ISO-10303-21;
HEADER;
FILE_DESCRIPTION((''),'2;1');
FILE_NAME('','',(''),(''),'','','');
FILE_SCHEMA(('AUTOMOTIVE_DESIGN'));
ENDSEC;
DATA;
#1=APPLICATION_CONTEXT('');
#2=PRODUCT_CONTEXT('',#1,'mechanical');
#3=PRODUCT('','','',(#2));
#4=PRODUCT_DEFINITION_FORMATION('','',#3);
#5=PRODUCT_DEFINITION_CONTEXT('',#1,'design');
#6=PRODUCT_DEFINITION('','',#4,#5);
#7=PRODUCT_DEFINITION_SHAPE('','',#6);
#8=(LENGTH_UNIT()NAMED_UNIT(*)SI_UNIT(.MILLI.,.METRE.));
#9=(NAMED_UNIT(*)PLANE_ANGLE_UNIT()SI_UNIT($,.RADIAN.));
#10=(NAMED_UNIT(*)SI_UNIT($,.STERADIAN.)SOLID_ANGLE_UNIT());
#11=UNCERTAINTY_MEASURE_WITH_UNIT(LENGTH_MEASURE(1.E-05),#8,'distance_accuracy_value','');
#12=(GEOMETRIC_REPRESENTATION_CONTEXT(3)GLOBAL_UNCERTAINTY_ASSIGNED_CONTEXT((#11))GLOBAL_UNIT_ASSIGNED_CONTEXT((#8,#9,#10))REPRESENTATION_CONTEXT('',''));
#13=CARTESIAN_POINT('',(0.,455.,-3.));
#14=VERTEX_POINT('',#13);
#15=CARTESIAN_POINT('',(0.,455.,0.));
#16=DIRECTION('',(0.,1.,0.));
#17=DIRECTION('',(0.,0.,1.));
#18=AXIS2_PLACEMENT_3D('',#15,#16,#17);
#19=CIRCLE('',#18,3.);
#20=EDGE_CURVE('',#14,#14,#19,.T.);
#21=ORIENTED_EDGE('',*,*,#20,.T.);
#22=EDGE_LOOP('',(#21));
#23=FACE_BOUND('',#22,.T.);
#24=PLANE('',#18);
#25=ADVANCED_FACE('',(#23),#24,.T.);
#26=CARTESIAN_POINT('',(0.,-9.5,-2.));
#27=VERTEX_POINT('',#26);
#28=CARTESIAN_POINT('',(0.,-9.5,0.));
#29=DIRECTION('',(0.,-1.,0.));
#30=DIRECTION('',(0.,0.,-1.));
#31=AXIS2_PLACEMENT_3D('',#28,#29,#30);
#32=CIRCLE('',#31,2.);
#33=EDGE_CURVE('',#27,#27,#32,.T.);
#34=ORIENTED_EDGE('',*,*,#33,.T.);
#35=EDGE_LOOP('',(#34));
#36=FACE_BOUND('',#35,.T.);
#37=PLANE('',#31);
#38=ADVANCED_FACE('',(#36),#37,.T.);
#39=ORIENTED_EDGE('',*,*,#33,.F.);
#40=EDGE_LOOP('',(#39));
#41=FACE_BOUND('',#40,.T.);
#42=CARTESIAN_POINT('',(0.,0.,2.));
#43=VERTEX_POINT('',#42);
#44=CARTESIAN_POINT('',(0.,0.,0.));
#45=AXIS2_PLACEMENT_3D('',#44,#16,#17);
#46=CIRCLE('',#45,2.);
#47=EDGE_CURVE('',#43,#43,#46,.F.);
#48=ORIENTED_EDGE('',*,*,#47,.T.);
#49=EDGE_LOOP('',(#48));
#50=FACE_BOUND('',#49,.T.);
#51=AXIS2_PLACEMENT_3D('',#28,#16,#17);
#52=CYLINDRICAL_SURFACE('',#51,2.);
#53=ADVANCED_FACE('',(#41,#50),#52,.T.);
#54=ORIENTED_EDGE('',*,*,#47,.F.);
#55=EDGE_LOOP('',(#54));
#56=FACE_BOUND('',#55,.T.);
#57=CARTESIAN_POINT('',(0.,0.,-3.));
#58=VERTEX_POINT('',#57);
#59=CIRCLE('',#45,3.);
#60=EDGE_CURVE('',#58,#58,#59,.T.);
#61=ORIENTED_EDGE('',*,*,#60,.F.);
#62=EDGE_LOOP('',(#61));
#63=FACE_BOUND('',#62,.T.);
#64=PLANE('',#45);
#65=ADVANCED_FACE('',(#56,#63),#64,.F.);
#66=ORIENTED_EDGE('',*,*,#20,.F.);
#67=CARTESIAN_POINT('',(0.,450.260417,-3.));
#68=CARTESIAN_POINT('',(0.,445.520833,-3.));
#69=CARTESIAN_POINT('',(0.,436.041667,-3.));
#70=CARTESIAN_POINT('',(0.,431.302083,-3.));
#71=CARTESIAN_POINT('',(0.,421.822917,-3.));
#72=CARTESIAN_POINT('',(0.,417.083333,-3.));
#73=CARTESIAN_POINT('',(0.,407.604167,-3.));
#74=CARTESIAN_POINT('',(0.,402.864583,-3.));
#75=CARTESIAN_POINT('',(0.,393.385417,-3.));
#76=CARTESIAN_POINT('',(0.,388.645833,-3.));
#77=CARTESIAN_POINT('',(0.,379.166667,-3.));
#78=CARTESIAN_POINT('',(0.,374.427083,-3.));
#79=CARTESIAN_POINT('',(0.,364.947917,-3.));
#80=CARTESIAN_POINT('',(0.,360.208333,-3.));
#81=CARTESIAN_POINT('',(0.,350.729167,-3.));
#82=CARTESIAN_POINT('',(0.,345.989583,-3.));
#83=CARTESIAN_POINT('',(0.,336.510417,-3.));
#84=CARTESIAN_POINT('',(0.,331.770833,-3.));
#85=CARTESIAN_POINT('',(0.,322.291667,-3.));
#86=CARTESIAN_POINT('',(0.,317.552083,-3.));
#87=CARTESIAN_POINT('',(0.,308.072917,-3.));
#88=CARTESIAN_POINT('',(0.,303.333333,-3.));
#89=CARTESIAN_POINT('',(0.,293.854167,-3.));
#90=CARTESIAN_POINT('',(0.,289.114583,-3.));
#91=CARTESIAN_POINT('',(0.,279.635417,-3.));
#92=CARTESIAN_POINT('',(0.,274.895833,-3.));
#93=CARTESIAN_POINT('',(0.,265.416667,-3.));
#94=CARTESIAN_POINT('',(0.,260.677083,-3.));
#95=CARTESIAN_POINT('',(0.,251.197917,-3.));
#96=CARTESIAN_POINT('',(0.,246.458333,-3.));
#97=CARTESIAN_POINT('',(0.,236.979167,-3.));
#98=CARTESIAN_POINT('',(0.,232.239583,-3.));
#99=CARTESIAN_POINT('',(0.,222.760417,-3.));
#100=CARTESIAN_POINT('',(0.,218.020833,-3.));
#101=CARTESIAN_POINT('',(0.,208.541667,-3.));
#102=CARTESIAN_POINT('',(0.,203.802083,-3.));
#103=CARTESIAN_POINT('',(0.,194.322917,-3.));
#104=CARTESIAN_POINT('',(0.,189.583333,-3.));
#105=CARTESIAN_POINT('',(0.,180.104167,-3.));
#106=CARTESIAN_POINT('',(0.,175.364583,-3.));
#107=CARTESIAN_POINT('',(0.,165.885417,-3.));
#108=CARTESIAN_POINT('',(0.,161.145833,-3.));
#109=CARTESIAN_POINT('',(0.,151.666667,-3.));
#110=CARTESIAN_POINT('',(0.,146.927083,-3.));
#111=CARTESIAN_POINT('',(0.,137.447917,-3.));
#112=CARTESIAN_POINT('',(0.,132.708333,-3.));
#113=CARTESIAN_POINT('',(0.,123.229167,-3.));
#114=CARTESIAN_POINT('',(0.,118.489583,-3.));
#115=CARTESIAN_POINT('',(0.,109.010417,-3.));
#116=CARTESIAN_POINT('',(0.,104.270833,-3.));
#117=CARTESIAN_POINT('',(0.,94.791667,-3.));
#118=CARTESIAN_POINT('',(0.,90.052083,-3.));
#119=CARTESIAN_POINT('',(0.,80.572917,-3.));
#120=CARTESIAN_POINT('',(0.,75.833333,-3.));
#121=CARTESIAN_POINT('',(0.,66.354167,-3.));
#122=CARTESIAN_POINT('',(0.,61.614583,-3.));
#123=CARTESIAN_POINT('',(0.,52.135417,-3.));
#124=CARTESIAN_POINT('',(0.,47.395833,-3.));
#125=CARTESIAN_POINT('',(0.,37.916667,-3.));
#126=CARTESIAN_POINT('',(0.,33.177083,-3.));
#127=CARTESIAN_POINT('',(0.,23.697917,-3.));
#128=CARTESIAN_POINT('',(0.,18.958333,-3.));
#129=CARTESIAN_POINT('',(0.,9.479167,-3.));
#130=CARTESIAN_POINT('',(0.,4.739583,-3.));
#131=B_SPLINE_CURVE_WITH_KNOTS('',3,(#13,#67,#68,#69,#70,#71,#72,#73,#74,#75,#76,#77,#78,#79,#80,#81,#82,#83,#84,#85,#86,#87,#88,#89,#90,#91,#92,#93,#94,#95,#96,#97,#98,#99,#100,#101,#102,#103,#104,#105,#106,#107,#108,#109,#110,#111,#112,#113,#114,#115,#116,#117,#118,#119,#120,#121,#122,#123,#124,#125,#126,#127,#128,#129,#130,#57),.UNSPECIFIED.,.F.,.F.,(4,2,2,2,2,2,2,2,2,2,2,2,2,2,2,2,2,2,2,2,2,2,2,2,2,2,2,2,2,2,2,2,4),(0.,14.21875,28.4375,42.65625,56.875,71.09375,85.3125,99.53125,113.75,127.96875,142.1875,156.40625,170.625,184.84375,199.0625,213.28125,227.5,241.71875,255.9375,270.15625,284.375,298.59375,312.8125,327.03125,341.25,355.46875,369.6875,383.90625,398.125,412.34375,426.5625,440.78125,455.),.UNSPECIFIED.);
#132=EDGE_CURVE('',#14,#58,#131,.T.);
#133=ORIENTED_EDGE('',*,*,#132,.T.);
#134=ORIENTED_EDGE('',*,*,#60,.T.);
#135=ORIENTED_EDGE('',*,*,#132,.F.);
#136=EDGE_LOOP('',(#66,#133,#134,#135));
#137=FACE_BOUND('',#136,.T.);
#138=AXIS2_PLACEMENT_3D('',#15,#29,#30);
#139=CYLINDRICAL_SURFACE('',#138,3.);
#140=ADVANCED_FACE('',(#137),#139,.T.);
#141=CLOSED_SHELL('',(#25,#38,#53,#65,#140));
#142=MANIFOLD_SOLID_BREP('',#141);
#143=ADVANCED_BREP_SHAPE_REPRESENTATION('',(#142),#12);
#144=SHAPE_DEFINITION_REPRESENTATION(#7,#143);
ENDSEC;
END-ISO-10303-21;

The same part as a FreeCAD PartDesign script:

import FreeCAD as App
import Part
import Sketcher

doc = App.newDocument("Part")
body = doc.addObject("PartDesign::Body", "Body")

sketch1 = doc.addObject("Sketcher::SketchObject", "Sketch")
body.addObject(sketch1)
sketch1.AttachmentSupport = (doc.XZ_Plane, [""])
sketch1.MapMode = "FlatFace"
sketch1.addGeometry(Part.Circle(App.Vector(0, 0, 0), App.Vector(0, 0, 1), 3), False)
sketch1.addConstraint(Sketcher.Constraint("Coincident", 0, 3, -1, 1))
sketch1.addConstraint(Sketcher.Constraint("Diameter", 0, 6.0))
pad1 = doc.addObject("PartDesign::Pad", "Pad")
body.addObject(pad1)
pad1.Profile = sketch1
pad1.Length = 455
pad1.Reversed = True

sketch2 = doc.addObject("Sketcher::SketchObject", "Sketch001")
body.addObject(sketch2)
sketch2.AttachmentSupport = (doc.XZ_Plane, [""])
sketch2.MapMode = "FlatFace"
sketch2.addGeometry(Part.Circle(App.Vector(0, 0, 0), App.Vector(0, 0, 1), 2), False)
sketch2.addConstraint(Sketcher.Constraint("Coincident", 0, 3, -1, 1))
sketch2.addConstraint(Sketcher.Constraint("Diameter", 0, 4.0))
pad2 = doc.addObject("PartDesign::Pad", "Pad001")
body.addObject(pad2)
pad2.Profile = sketch2
pad2.Length = 9.5

doc.recompute()
